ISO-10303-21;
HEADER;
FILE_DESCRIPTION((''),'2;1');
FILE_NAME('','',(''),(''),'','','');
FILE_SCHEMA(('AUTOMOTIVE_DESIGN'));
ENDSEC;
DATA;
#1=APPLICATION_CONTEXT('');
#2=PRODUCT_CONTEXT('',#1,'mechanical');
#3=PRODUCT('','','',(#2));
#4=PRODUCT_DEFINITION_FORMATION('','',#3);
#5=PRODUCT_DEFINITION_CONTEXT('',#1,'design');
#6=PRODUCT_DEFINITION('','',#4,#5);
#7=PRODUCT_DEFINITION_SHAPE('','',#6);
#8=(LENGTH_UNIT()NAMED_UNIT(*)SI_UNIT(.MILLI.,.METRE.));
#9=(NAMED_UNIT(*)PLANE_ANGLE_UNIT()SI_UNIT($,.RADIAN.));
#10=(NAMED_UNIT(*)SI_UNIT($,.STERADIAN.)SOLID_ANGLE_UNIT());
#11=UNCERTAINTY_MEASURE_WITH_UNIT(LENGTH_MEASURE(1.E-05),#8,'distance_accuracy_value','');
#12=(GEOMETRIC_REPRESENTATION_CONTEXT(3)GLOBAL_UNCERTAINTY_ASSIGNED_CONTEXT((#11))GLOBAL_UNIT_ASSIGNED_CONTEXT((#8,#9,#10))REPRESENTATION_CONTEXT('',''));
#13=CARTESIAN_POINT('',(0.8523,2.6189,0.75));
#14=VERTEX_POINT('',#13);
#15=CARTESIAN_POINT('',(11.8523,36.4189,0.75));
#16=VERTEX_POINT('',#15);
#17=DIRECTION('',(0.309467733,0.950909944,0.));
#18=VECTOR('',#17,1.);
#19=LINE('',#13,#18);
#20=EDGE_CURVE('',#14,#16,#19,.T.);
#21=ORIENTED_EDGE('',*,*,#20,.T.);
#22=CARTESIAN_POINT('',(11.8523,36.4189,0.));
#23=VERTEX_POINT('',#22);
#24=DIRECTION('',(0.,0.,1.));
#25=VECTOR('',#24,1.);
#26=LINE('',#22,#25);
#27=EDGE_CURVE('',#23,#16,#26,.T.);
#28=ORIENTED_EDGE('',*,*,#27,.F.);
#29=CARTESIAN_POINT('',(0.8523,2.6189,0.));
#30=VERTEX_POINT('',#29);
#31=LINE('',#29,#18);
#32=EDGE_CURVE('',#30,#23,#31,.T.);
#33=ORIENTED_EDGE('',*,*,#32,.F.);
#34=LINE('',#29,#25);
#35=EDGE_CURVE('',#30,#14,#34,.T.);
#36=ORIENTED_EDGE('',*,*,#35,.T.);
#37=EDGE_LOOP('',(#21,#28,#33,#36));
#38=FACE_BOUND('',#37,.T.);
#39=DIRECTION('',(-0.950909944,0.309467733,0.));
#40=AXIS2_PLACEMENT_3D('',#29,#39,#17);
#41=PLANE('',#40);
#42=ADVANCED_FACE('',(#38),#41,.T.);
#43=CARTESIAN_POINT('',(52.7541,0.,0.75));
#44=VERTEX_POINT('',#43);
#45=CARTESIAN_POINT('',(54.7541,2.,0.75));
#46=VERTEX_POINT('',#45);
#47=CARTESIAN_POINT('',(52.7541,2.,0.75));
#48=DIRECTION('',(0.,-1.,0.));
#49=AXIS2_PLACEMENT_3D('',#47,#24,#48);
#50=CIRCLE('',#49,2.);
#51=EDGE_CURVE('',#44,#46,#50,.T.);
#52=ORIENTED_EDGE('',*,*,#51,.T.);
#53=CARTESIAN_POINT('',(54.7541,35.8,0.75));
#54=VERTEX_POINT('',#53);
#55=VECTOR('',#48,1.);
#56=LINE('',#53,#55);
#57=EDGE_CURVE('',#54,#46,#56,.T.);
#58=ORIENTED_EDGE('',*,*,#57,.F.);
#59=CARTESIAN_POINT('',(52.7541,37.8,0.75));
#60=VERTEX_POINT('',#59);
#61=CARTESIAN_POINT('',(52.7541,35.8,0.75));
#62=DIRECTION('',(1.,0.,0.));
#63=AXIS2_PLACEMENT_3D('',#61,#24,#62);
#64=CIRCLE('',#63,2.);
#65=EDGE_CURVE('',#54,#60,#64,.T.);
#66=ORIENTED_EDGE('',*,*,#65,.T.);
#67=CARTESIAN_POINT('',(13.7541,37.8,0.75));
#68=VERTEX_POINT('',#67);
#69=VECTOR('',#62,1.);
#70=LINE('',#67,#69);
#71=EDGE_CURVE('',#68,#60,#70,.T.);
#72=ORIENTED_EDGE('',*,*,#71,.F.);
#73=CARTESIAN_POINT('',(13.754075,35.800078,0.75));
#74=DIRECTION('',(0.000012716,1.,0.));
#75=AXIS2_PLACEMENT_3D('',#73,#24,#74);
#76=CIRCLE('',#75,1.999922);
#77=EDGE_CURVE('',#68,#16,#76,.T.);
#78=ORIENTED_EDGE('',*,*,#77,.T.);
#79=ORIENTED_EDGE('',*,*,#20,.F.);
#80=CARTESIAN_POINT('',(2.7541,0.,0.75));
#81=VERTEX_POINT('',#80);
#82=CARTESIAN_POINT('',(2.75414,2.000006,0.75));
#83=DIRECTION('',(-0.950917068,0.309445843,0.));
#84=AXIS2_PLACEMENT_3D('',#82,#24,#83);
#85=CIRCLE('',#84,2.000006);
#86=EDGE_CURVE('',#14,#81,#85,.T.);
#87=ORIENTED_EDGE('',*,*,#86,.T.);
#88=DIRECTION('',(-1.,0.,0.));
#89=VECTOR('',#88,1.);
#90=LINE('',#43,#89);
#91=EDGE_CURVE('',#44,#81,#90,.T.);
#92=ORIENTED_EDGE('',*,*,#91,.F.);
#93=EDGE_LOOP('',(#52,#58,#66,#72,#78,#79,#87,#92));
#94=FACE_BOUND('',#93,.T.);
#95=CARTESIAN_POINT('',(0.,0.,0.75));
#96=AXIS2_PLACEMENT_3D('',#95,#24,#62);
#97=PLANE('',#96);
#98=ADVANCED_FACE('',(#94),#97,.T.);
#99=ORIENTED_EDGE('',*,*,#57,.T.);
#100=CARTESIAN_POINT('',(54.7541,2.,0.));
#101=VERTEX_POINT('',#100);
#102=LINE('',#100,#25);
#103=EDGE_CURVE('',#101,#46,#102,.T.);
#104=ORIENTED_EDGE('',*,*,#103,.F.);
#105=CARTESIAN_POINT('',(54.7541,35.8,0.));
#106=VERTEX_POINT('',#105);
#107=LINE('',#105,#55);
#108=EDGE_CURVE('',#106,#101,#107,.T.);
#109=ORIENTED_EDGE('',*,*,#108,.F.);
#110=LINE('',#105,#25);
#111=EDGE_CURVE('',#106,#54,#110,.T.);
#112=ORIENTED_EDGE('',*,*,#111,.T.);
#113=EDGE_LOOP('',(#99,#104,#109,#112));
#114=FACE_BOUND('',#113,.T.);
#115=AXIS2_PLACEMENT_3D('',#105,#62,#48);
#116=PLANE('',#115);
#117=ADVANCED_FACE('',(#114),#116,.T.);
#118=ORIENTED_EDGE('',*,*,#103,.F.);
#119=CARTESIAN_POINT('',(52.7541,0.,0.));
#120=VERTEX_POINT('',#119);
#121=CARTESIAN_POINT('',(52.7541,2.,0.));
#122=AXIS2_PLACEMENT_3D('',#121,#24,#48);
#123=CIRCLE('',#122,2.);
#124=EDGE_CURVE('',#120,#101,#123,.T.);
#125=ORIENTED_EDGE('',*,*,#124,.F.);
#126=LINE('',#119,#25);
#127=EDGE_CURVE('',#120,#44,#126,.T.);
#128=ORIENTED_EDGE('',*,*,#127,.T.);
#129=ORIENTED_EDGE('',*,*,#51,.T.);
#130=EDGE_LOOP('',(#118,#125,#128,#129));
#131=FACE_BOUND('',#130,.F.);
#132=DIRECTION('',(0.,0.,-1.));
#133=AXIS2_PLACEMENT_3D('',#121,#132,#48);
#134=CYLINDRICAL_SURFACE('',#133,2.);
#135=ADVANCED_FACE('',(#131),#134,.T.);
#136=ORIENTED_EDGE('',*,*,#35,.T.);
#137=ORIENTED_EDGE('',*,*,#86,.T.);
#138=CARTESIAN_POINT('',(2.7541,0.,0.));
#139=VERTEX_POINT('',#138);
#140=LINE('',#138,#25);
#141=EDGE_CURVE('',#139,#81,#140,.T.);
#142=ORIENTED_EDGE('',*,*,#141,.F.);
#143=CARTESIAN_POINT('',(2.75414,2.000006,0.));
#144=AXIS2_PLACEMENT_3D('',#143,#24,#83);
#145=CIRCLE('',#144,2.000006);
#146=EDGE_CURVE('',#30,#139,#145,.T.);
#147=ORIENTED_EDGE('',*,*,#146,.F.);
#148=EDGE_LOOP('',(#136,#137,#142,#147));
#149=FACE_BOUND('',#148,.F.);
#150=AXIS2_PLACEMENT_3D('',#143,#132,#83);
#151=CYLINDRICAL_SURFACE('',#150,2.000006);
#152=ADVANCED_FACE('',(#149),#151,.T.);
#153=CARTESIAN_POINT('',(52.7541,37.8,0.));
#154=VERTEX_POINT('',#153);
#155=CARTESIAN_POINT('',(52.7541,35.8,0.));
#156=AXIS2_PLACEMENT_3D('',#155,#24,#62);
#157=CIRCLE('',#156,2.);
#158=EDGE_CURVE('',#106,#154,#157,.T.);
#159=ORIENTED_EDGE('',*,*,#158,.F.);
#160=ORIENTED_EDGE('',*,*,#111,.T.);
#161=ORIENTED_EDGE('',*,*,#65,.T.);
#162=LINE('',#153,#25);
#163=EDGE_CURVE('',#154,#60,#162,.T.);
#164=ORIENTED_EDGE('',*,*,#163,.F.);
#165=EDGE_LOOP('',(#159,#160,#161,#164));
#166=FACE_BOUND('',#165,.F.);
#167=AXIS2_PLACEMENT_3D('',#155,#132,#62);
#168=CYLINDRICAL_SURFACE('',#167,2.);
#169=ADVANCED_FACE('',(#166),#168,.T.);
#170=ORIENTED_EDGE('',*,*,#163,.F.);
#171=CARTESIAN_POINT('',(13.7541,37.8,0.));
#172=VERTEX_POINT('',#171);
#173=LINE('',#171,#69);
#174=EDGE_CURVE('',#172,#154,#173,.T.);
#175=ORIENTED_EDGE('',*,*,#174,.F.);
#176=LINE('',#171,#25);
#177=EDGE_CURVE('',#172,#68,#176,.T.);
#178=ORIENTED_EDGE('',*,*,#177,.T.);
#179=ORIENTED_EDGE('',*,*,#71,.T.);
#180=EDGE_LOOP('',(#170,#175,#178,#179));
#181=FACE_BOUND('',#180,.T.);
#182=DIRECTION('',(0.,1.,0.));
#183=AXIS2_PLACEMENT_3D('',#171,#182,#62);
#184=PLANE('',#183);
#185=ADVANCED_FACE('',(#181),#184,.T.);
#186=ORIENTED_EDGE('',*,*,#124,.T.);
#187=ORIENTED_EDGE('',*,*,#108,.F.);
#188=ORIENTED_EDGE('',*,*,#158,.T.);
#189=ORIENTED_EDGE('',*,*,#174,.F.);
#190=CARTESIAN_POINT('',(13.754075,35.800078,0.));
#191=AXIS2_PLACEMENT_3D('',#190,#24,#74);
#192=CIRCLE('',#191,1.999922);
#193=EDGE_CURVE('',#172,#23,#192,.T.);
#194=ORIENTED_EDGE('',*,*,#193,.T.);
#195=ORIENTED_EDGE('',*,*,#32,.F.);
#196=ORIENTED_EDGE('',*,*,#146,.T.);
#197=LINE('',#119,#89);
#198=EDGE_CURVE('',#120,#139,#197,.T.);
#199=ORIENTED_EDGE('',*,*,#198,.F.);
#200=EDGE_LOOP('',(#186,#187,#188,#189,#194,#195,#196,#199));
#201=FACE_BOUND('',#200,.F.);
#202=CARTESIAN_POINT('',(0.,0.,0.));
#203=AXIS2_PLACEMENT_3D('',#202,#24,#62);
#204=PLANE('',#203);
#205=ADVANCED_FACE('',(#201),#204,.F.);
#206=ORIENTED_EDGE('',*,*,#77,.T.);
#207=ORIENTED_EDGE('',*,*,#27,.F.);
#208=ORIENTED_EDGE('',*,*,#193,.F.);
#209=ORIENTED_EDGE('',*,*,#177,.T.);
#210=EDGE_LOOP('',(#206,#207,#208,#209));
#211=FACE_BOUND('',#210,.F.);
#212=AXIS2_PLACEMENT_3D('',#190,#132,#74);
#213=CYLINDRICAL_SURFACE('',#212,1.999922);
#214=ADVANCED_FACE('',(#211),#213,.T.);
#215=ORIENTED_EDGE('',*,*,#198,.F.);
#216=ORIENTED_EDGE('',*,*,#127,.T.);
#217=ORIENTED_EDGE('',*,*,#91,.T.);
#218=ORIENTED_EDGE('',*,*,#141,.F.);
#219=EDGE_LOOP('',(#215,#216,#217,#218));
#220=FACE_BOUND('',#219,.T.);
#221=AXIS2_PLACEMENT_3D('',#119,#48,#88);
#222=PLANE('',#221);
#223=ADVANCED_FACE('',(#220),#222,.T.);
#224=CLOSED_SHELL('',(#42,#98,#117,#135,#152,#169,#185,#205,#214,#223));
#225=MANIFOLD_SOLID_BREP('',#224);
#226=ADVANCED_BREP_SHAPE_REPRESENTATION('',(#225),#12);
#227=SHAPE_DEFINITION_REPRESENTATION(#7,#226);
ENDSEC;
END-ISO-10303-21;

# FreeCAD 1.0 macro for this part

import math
import FreeCAD as App
import Part
import Sketcher

V = App.Vector
Q = App.Units.Quantity

doc = App.newDocument("Part")
body = doc.addObject("PartDesign::Body", "Body")

# Sketch on XY plane
sketch1 = body.newObject("Sketcher::SketchObject", "Sketch")
sketch1.AttachmentSupport = (doc.getObject("XY_Plane"), [""])
sketch1.MapMode = "FlatFace"
sketch1.addGeometry([
    Part.LineSegment(V(11.9, 36.4, 0), V(0.9, 2.6, 0)),  # 0
    Part.ArcOfCircle(Part.Circle(V(2.8, 2, 0), V(0, 0, 1), 2), math.radians(162), math.radians(270)),  # 1
    Part.LineSegment(V(2.8, 0, 0), V(52.8, 0, 0)),  # 2
    Part.ArcOfCircle(Part.Circle(V(52.8, 2, 0), V(0, 0, 1), 2), math.radians(-90), math.radians(0)),  # 3
    Part.LineSegment(V(54.8, 2, 0), V(54.8, 35.8, 0)),  # 4
    Part.ArcOfCircle(Part.Circle(V(52.8, 35.8, 0), V(0, 0, 1), 2), math.radians(0), math.radians(90)),  # 5
    Part.LineSegment(V(52.8, 37.8, 0), V(13.8, 37.8, 0)),  # 6
    Part.ArcOfCircle(Part.Circle(V(13.8, 35.8, 0), V(0, 0, 1), 2), math.radians(90), math.radians(162)),  # 7
], False)
sketch1.addConstraint([
    Sketcher.Constraint("Tangent", 0, 2, 1, 1),
    Sketcher.Constraint("Tangent", 1, 2, 2, 1),
    Sketcher.Constraint("Tangent", 2, 2, 3, 1),
    Sketcher.Constraint("Tangent", 3, 2, 4, 1),
    Sketcher.Constraint("Tangent", 4, 2, 5, 1),
    Sketcher.Constraint("Tangent", 5, 2, 6, 1),
    Sketcher.Constraint("Tangent", 6, 2, 7, 1),
    Sketcher.Constraint("Tangent", 7, 2, 0, 1),
    Sketcher.Constraint("Horizontal", 2),
    Sketcher.Constraint("Vertical", 4),
    Sketcher.Constraint("Horizontal", 6),
    Sketcher.Constraint("Equal", 1, 3),
    Sketcher.Constraint("Equal", 3, 5),
    Sketcher.Constraint("Equal", 5, 7),
    Sketcher.Constraint("PointOnObject", 1, 2, -1),
    Sketcher.Constraint("Radius", 1, Q("2 mm")),
    Sketcher.Constraint("DistanceX", 2, 1, 2, 2, Q("50 mm")),
    Sketcher.Constraint("DistanceX", 6, 2, 6, 1, Q("39 mm")),
    Sketcher.Constraint("DistanceY", 4, 1, 4, 2, Q("33.8 mm")),
    Sketcher.Constraint("DistanceX", -1, 1, 1, 3, Q("2.754 mm")),
])
pad1 = body.newObject("PartDesign::Pad", "Pad")
pad1.Profile = sketch1
pad1.Length = 0.75

doc.recompute()
